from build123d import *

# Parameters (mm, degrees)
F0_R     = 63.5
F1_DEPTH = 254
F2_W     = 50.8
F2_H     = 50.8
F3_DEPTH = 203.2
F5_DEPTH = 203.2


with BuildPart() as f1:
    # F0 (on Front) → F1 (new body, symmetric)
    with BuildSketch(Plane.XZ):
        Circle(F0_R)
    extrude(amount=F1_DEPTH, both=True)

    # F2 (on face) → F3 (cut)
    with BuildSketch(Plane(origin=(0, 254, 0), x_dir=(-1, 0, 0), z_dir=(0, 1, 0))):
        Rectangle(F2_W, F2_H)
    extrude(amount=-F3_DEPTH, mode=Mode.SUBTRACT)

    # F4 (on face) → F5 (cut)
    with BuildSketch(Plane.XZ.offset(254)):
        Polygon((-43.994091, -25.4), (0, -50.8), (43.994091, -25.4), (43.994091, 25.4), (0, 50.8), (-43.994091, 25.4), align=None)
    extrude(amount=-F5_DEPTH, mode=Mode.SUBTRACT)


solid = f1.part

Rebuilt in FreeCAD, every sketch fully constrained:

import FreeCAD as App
import Part
import Sketcher

V = App.Vector
Q = App.Units.Quantity


def add_polygon(sketch, points):
    """Adds a closed chain of lines whose ends are joined by coincident constraints."""
    first, n = sketch.GeometryCount, len(points)
    for a, b in zip(points, points[1:] + points[:1]):
        sketch.addGeometry(Part.LineSegment(App.Vector(*a, 0), App.Vector(*b, 0)), False)
    for i in range(n):
        sketch.addConstraint(Sketcher.Constraint("Coincident", first + i, 2, first + (i + 1) % n, 1))

doc = App.newDocument("Part")
body = doc.addObject("PartDesign::Body", "Body")

# Sketch on XZ plane
sketch1 = body.newObject("Sketcher::SketchObject", "Sketch")
sketch1.AttachmentSupport = (doc.getObject("XZ_Plane"), [""])
sketch1.MapMode = "FlatFace"
sketch1.addGeometry(Part.Circle(V(0, 0, 0), V(0, 0, 1), 64), False)
sketch1.addConstraint([
    Sketcher.Constraint("Coincident", 0, 3, -1, 1),
    Sketcher.Constraint("Diameter", 0, Q("5 in")),
])
pad1 = body.newObject("PartDesign::Pad", "Pad")
pad1.Profile = sketch1
pad1.Length = Q("20 in")
pad1.Midplane = True

# Sketch on XZ plane
sketch2 = body.newObject("Sketcher::SketchObject", "Sketch001")
sketch2.AttachmentSupport = (doc.getObject("XZ_Plane"), [""])
sketch2.MapMode = "FlatFace"
sketch2.AttachmentOffset = App.Placement(V(0, 0, -10 * 25.4), App.Rotation())
add_polygon(sketch2, [(25, 25), (25, -25), (-25, -25), (-25, 25)])  # lines 0-3
sketch2.addConstraint([
    Sketcher.Constraint("Vertical", 0),
    Sketcher.Constraint("Horizontal", 1),
    Sketcher.Constraint("Vertical", 2),
    Sketcher.Constraint("Horizontal", 3),
    Sketcher.Constraint("Symmetric", 0, 2, 2, 2, -1, 1),
    Sketcher.Constraint("Equal", 3, 0),
    Sketcher.Constraint("DistanceX", 1, 2, 1, 1, Q("2 in")),
])
pocket1 = body.newObject("PartDesign::Pocket", "Pocket")
pocket1.Profile = sketch2
pocket1.Length = Q("8 in")
pocket1.Reversed = True

# Sketch on XZ plane
sketch3 = body.newObject("Sketcher::SketchObject", "Sketch002")
sketch3.AttachmentSupport = (doc.getObject("XZ_Plane"), [""])
sketch3.MapMode = "FlatFace"
sketch3.AttachmentOffset = App.Placement(V(0, 0, 10 * 25.4), App.Rotation())
add_polygon(sketch3, [(-44, -25), (0, -51), (44, -25), (44, 25), (0, 51), (-44, 25)])  # lines 0-5
sketch3.addConstraint([
    Sketcher.Constraint("Vertical", 2),
    Sketcher.Constraint("Vertical", 5),
    Sketcher.Constraint("Symmetric", 0, 2, 3, 2, -1, 1),
    Sketcher.Constraint("Symmetric", 1, 2, 4, 2, -1, 1),
    Sketcher.Constraint("PointOnObject", 0, 2, -2),
    Sketcher.Constraint("Parallel", 0, 3),
    Sketcher.Constraint("Horizontal", 2, 2, 4, 2),
    Sketcher.Constraint("DistanceY", 2, 1, 2, 2, Q("2 in")),
    Sketcher.Constraint("Distance", 0, Q("2 in")),
    Sketcher.Constraint("DistanceY", 0, 2, -1, 1, Q("2 in")),
])
pocket2 = body.newObject("PartDesign::Pocket", "Pocket001")
pocket2.Profile = sketch3
pocket2.Length = Q("8 in")

doc.recompute()
